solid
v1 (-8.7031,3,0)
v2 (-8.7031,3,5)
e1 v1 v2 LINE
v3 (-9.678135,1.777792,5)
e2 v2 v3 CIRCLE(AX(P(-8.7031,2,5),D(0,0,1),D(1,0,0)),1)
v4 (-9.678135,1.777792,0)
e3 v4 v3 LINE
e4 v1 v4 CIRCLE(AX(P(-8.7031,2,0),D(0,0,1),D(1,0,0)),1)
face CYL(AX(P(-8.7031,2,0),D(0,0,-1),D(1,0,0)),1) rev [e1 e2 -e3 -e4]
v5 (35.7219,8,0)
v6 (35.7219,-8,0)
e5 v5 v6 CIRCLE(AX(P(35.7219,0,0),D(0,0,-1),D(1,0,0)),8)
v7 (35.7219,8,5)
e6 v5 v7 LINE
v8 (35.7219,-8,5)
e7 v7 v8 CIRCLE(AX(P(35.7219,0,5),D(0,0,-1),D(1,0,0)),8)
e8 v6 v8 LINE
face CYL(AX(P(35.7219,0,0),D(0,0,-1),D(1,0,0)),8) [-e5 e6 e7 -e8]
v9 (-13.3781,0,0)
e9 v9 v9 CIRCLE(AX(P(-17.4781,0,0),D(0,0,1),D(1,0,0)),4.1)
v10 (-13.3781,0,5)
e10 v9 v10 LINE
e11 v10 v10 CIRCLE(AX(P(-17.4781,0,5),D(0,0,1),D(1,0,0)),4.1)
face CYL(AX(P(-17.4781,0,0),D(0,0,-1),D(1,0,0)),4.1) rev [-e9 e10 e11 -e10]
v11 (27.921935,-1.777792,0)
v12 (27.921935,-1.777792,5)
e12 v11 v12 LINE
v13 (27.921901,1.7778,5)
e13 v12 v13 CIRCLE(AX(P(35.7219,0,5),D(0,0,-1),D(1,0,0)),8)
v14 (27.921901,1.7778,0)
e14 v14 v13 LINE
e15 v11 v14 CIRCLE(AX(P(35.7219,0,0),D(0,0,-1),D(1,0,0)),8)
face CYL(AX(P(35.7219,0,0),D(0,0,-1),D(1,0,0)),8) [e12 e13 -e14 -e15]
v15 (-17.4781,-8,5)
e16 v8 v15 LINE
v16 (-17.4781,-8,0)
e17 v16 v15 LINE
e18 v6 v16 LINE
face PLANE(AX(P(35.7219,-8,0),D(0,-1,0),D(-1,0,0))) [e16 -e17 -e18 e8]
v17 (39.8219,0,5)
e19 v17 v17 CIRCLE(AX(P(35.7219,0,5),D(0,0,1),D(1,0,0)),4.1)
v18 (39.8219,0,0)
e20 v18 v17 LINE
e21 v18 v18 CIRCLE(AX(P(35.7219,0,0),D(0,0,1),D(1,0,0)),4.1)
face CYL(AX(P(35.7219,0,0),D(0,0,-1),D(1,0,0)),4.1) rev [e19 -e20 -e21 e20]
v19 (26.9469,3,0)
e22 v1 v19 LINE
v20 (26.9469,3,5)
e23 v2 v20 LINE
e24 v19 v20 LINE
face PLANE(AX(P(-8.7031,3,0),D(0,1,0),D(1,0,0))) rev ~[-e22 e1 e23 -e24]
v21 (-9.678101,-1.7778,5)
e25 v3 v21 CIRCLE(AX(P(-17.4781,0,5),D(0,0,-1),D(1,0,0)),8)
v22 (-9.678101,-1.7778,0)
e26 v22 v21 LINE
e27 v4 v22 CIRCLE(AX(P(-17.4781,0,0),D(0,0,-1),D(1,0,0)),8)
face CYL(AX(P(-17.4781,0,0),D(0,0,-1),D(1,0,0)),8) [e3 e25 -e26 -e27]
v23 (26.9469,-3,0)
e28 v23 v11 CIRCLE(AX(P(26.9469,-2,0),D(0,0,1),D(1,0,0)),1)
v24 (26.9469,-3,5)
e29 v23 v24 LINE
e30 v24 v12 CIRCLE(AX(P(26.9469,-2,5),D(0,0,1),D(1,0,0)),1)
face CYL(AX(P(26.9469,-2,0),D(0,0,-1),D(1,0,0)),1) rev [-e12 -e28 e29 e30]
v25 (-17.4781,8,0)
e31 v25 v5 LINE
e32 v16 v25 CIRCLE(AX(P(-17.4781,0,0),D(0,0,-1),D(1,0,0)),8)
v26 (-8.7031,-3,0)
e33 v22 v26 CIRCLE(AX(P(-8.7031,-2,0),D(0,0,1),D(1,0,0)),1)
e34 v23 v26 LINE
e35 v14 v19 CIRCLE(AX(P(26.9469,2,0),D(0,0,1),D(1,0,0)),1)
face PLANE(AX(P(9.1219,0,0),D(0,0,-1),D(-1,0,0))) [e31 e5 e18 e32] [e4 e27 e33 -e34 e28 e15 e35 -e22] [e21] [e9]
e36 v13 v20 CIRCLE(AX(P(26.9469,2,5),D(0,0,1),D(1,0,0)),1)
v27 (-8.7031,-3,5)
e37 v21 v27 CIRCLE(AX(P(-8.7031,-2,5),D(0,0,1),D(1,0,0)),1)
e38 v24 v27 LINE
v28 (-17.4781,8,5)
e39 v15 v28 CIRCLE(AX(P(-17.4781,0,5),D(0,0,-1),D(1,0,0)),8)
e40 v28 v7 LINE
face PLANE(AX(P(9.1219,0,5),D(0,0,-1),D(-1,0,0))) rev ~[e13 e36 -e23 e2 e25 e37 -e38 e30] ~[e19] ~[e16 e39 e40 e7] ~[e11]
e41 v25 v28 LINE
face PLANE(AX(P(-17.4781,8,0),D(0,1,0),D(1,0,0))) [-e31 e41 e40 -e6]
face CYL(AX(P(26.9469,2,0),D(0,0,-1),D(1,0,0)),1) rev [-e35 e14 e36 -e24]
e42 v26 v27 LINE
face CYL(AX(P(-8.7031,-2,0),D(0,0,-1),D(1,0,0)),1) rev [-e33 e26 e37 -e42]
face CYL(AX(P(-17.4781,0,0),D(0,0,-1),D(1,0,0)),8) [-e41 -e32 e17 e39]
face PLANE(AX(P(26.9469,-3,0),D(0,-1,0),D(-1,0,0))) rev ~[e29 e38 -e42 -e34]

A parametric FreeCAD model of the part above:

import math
import FreeCAD as App
import Part
import Sketcher
Q = App.Units.Quantity

doc = App.newDocument("Part")
params = doc.addObject("Spreadsheet::Sheet", "Params")
for row, (alias, value) in enumerate([
    ("sketch1_radius", "8 mm"),
    ("sketch1_radius2", "1 mm"),
    ("sketch1_diameter", "8.2 mm"),
    ("sketch1_width", "53.2 mm"),
    ("pad1_length", "5 mm"),
], start=1):
    params.set(f"A{row}", alias)
    params.set(f"B{row}", "=" + value)
    params.setAlias(f"B{row}", alias)

body = doc.addObject("PartDesign::Body", "Body")

# Sketch on XY plane
sketch1 = body.newObject("Sketcher::SketchObject", "Sketch")
sketch1.AttachmentSupport = (doc.getObject("XY_Plane"), [""])
sketch1.MapMode = "FlatFace"
sketch1.addGeometry(Part.LineSegment(App.Vector(35.7, 8, 0), App.Vector(-17.5, 8, 0)), False)
sketch1.addGeometry(Part.ArcOfCircle(Part.Circle(App.Vector(-17.5, 0, 0), App.Vector(0, 0, 1), 8), math.radians(90), math.radians(270)), False)
sketch1.addGeometry(Part.LineSegment(App.Vector(-17.5, -8, 0), App.Vector(35.7, -8, 0)), False)
sketch1.addGeometry(Part.ArcOfCircle(Part.Circle(App.Vector(35.7, 0, 0), App.Vector(0, 0, 1), 8), math.radians(-90), math.radians(90)), False)
sketch1.addGeometry(Part.ArcOfCircle(Part.Circle(App.Vector(-8.7, 2, 0), App.Vector(0, 0, 1), 1), math.radians(90), math.radians(193)), False)
sketch1.addGeometry(Part.LineSegment(App.Vector(-8.7, 3, 0), App.Vector(26.9, 3, 0)), False)
sketch1.addGeometry(Part.ArcOfCircle(Part.Circle(App.Vector(26.9, 2, 0), App.Vector(0, 0, 1), 1), math.radians(-13), math.radians(90)), False)
sketch1.addGeometry(Part.ArcOfCircle(Part.Circle(App.Vector(35.7, 0, 0), App.Vector(0, 0, 1), 8), math.radians(167), math.radians(193)), False)
sketch1.addGeometry(Part.ArcOfCircle(Part.Circle(App.Vector(26.9, -2, 0), App.Vector(0, 0, 1), 1), math.radians(-90), math.radians(13)), False)
sketch1.addGeometry(Part.LineSegment(App.Vector(26.9, -3, 0), App.Vector(-8.7, -3, 0)), False)
sketch1.addGeometry(Part.ArcOfCircle(Part.Circle(App.Vector(-8.7, -2, 0), App.Vector(0, 0, 1), 1), math.radians(167), math.radians(270)), False)
sketch1.addGeometry(Part.ArcOfCircle(Part.Circle(App.Vector(-17.5, 0, 0), App.Vector(0, 0, 1), 8), math.radians(-13), math.radians(13)), False)
sketch1.addGeometry(Part.Circle(App.Vector(-17.5, 0, 0), App.Vector(0, 0, 1), 4.1), False)
sketch1.addGeometry(Part.Circle(App.Vector(35.7, 0, 0), App.Vector(0, 0, 1), 4.1), False)
sketch1.addConstraint(Sketcher.Constraint("Tangent", 0, 2, 1, 1))
sketch1.addConstraint(Sketcher.Constraint("Tangent", 1, 2, 2, 1))
sketch1.addConstraint(Sketcher.Constraint("Tangent", 2, 2, 3, 1))
sketch1.addConstraint(Sketcher.Constraint("Tangent", 3, 2, 0, 1))
sketch1.addConstraint(Sketcher.Constraint("Tangent", 4, 1, 5, 1))
sketch1.addConstraint(Sketcher.Constraint("Tangent", 5, 2, 6, 2))
sketch1.addConstraint(Sketcher.Constraint("Tangent", 6, 1, 7, 1))
sketch1.addConstraint(Sketcher.Constraint("Tangent", 7, 2, 8, 2))
sketch1.addConstraint(Sketcher.Constraint("Tangent", 8, 1, 9, 1))
sketch1.addConstraint(Sketcher.Constraint("Tangent", 9, 2, 10, 2))
sketch1.addConstraint(Sketcher.Constraint("Tangent", 10, 1, 11, 1))
sketch1.addConstraint(Sketcher.Constraint("Tangent", 11, 2, 4, 2))
sketch1.addConstraint(Sketcher.Constraint("Horizontal", 0))
sketch1.addConstraint(Sketcher.Constraint("Horizontal", 2))
sketch1.addConstraint(Sketcher.Constraint("Horizontal", 5))
sketch1.addConstraint(Sketcher.Constraint("Horizontal", 9))
sketch1.addConstraint(Sketcher.Constraint("Coincident", 7, 3, 3, 3))
sketch1.addConstraint(Sketcher.Constraint("Coincident", 11, 3, 1, 3))
sketch1.addConstraint(Sketcher.Constraint("Coincident", 12, 3, 1, 3))
sketch1.addConstraint(Sketcher.Constraint("Coincident", 13, 3, 3, 3))
sketch1.addConstraint(Sketcher.Constraint("Equal", 4, 6))
sketch1.addConstraint(Sketcher.Constraint("Equal", 3, 7))
sketch1.addConstraint(Sketcher.Constraint("Equal", 6, 8))
sketch1.addConstraint(Sketcher.Constraint("Equal", 8, 10))
sketch1.addConstraint(Sketcher.Constraint("Equal", 7, 11))
sketch1.addConstraint(Sketcher.Constraint("Equal", 12, 13))
sketch1.addConstraint(Sketcher.Constraint("Symmetric", 6, 3, 8, 3, -1))
sketch1.addConstraint(Sketcher.Constraint("Radius", 1, Q("8 mm")))
sketch1.addConstraint(Sketcher.Constraint("Radius", 4, Q("1 mm")))
sketch1.addConstraint(Sketcher.Constraint("Diameter", 12, Q("8.2 mm")))
sketch1.addConstraint(Sketcher.Constraint("DistanceX", 0, 2, 0, 1, Q("53.2 mm")))
sketch1.addConstraint(Sketcher.Constraint("DistanceY", -1, 1, 4, 3, Q("2 mm")))
sketch1.addConstraint(Sketcher.Constraint("DistanceX", 1, 3, -1, 1, Q("17.478 mm")))
sketch1.setExpression("Constraints[27]", "Params.sketch1_radius")
sketch1.setExpression("Constraints[28]", "Params.sketch1_radius2")
sketch1.setExpression("Constraints[29]", "Params.sketch1_diameter")
sketch1.setExpression("Constraints[30]", "Params.sketch1_width")
pad1 = body.newObject("PartDesign::Pad", "Pad")
pad1.Profile = sketch1
pad1.setExpression("Length", "Params.pad1_length")

doc.recompute()
